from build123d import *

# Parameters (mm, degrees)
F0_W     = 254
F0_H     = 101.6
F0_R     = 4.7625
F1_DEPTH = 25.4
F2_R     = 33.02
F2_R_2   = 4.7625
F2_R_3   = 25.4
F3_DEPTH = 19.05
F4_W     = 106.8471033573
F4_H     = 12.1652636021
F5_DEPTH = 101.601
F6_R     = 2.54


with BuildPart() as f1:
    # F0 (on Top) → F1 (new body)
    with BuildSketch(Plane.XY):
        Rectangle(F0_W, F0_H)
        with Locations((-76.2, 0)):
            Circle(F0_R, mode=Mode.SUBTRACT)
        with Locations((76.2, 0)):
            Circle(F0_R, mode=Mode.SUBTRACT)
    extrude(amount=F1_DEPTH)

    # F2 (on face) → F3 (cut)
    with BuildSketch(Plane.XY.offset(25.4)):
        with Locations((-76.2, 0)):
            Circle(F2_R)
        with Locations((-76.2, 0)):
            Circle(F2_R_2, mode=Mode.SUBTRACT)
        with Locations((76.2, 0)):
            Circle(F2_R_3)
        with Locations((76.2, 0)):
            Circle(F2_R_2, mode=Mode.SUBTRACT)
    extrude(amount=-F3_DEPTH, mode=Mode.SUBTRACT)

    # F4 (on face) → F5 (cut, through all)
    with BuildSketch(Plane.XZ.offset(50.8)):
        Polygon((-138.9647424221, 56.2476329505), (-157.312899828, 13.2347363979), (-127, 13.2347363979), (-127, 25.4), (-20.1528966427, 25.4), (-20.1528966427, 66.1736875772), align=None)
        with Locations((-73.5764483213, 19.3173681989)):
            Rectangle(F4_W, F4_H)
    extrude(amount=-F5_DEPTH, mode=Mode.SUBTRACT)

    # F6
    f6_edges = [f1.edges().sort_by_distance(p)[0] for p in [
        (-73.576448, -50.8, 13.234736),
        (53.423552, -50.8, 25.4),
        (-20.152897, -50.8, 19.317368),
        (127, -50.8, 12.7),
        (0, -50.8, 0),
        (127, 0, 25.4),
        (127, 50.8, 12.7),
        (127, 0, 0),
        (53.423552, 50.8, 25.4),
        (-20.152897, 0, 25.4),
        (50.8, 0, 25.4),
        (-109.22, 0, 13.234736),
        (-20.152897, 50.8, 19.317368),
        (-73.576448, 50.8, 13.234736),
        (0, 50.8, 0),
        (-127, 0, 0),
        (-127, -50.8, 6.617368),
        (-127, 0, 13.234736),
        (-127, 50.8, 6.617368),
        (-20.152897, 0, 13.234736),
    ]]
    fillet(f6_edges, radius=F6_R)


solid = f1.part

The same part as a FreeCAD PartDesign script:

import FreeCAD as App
import Part
import Sketcher
from FreeCAD import Vector
Q = App.Units.Quantity


def edges_at(feature, points):
    """Names of the edges that pass closest to the given points."""
    edges = feature.Shape.Edges
    near = lambda p: min(range(len(edges)), key=lambda i: edges[i].distToShape(Part.Vertex(*p))[0])
    return sorted({f"Edge{near(p) + 1}" for p in points})

doc = App.newDocument("Part")
params = doc.addObject("Spreadsheet::Sheet", "Params")
for row, (alias, value) in enumerate([
    ("sketch1_width", "10 in"),
    ("sketch1_height", "4 in"),
    ("sketch1_diameter", "0.375 in"),
    ("pad1_length", "1 in"),
    ("sketch2_diameter", "2 in"),
    ("sketch2_diameter2", "2.6 in"),
    ("sketch2_diameter3", "0.375 in"),
    ("pocket1_length", "0.75 in"),
    ("sketch3_width", "5.4000001 in"),
    ("fillet_radius", "0.1 in"),
], start=1):
    params.set(f"A{row}", alias)
    params.set(f"B{row}", "=" + value)
    params.setAlias(f"B{row}", alias)

body = doc.addObject("PartDesign::Body", "Body")

# Sketch on XY plane
sketch1 = body.newObject("Sketcher::SketchObject", "Sketch")
sketch1.AttachmentSupport = (doc.getObject("XY_Plane"), [""])
sketch1.MapMode = "FlatFace"
sketch1.addGeometry([
    Part.LineSegment(Vector(-127, 50.8, 0), Vector(-127, -50.8, 0)),  # 0
    Part.LineSegment(Vector(-127, -50.8, 0), Vector(127, -50.8, 0)),  # 1
    Part.LineSegment(Vector(127, -50.8, 0), Vector(127, 50.8, 0)),  # 2
    Part.LineSegment(Vector(127, 50.8, 0), Vector(-127, 50.8, 0)),  # 3
    Part.Circle(Vector(-76.2, 0, 0), Vector(0, 0, 1), 4.8),  # 4
    Part.Circle(Vector(76.2, 0, 0), Vector(0, 0, 1), 4.8),  # 5
], False)
sketch1.addConstraint([
    Sketcher.Constraint("Coincident", 0, 2, 1, 1),
    Sketcher.Constraint("Coincident", 1, 2, 2, 1),
    Sketcher.Constraint("Coincident", 2, 2, 3, 1),
    Sketcher.Constraint("Coincident", 3, 2, 0, 1),
    Sketcher.Constraint("Vertical", 0),
    Sketcher.Constraint("Horizontal", 1),
    Sketcher.Constraint("Vertical", 2),
    Sketcher.Constraint("Horizontal", 3),
    Sketcher.Constraint("Equal", 4, 5),
    Sketcher.Constraint("Symmetric", 4, 3, 5, 3, -1, 1),
    Sketcher.Constraint("Symmetric", 0, 2, 2, 2, -1, 1),
    Sketcher.Constraint("PointOnObject", 4, 3, -1),
    Sketcher.Constraint("DistanceX", 1, 1, 1, 2, Q("10 in")),
    Sketcher.Constraint("DistanceY", 0, 2, 0, 1, Q("4 in")),
    Sketcher.Constraint("Diameter", 4, Q("0.375 in")),
    Sketcher.Constraint("DistanceX", 4, 3, -1, 1, Q("3 in")),
])
sketch1.setExpression("Constraints[12]", "Params.sketch1_width")
sketch1.setExpression("Constraints[13]", "Params.sketch1_height")
sketch1.setExpression("Constraints[14]", "Params.sketch1_diameter")
pad1 = body.newObject("PartDesign::Pad", "Pad")
pad1.Profile = sketch1
pad1.setExpression("Length", "Params.pad1_length")

# Sketch on XY plane
sketch2 = body.newObject("Sketcher::SketchObject", "Sketch001")
sketch2.AttachmentSupport = (doc.getObject("XY_Plane"), [""])
sketch2.MapMode = "FlatFace"
sketch2.AttachmentOffset = App.Placement(Vector(0, 0, 1 * 25.4), App.Rotation())
sketch2.addGeometry([
    Part.Circle(Vector(-76.2, 0, 0), Vector(0, 0, 1), 33),
    Part.Circle(Vector(-76.2, 0, 0), Vector(0, 0, 1), 4.8),
    Part.Circle(Vector(76.2, 0, 0), Vector(0, 0, 1), 25.4),
    Part.Circle(Vector(76.2, 0, 0), Vector(0, 0, 1), 4.8),
], False)
sketch2.addConstraint([
    Sketcher.Constraint("Coincident", 1, 3, 0, 3),
    Sketcher.Constraint("Coincident", 3, 3, 2, 3),
    Sketcher.Constraint("Equal", 1, 3),
    Sketcher.Constraint("Symmetric", 0, 3, 2, 3, -1, 1),
    Sketcher.Constraint("PointOnObject", 0, 3, -1),
    Sketcher.Constraint("Diameter", 2, Q("2 in")),
    Sketcher.Constraint("Diameter", 0, Q("2.6 in")),
    Sketcher.Constraint("Diameter", 1, Q("0.375 in")),
    Sketcher.Constraint("DistanceX", 0, 3, -1, 1, Q("3 in")),
])
sketch2.setExpression("Constraints[5]", "Params.sketch2_diameter")
sketch2.setExpression("Constraints[6]", "Params.sketch2_diameter2")
sketch2.setExpression("Constraints[7]", "Params.sketch2_diameter3")
pocket1 = body.newObject("PartDesign::Pocket", "Pocket")
pocket1.Profile = sketch2
pocket1.setExpression("Length", "Params.pocket1_length")

# Sketch on XZ plane
sketch3 = body.newObject("Sketcher::SketchObject", "Sketch002")
sketch3.AttachmentSupport = (doc.getObject("XZ_Plane"), [""])
sketch3.MapMode = "FlatFace"
sketch3.AttachmentOffset = App.Placement(Vector(0, 0, 2 * 25.4), App.Rotation())
sketch3.addGeometry([
    Part.LineSegment(Vector(-139, 56, 0), Vector(-157, 13, 0)),
    Part.LineSegment(Vector(-157, 13, 0), Vector(-20, 13, 0)),
    Part.LineSegment(Vector(-20, 13, 0), Vector(-20, 66, 0)),
    Part.LineSegment(Vector(-20, 66, 0), Vector(-139, 56, 0)),
], False)
sketch3.addConstraint([
    Sketcher.Constraint("Coincident", 0, 2, 1, 1),
    Sketcher.Constraint("Coincident", 1, 2, 2, 1),
    Sketcher.Constraint("Coincident", 2, 2, 3, 1),
    Sketcher.Constraint("Coincident", 3, 2, 0, 1),
    Sketcher.Constraint("Horizontal", 1),
    Sketcher.Constraint("Vertical", 2),
    Sketcher.Constraint("DistanceX", 1, 1, 1, 2, Q("5.4000001 in")),
    Sketcher.Constraint("DistanceY", 2, 1, 2, 2, Q("52.938951 mm")),
    Sketcher.Constraint("DistanceX", 0, 2, -1, 1, Q("157.3129 mm")),
    Sketcher.Constraint("Distance", 0, Q("46.76285 mm")),
    Sketcher.Constraint("Distance", 3, Q("119.225758 mm")),
    Sketcher.Constraint("DistanceY", -1, 1, 0, 2, Q("13.234736 mm")),
])
sketch3.setExpression("Constraints[6]", "Params.sketch3_width")
pocket2 = body.newObject("PartDesign::Pocket", "Pocket001")
pocket2.Profile = sketch3
pocket2.Type = "ThroughAll"
doc.recompute()

fillet = body.newObject("PartDesign::Fillet", "Fillet")
fillet.Base = (pocket2, edges_at(pocket2, [
    (-73.576, -50.8, 13.235),
    (53.424, -50.8, 25.4),
    (-20.153, -50.8, 19.317),
    (127, -50.8, 12.7),
    (0, -50.8, 0),
    (127, 0, 25.4),
    (127, 50.8, 12.7),
    (127, 0, 0),
    (53.424, 50.8, 25.4),
    (-20.153, 0, 25.4),
    (50.8, 0, 25.4),
    (-109.22, 0, 13.235),
    (-20.153, 50.8, 19.317),
    (-73.576, 50.8, 13.235),
    (0, 50.8, 0),
    (-127, 0, 0),
    (-127, -50.8, 6.617),
    (-127, 0, 13.235),
    (-127, 50.8, 6.617),
    (-20.153, 0, 13.235),
]))
fillet.setExpression("Radius", "Params.fillet_radius")

doc.recompute()
